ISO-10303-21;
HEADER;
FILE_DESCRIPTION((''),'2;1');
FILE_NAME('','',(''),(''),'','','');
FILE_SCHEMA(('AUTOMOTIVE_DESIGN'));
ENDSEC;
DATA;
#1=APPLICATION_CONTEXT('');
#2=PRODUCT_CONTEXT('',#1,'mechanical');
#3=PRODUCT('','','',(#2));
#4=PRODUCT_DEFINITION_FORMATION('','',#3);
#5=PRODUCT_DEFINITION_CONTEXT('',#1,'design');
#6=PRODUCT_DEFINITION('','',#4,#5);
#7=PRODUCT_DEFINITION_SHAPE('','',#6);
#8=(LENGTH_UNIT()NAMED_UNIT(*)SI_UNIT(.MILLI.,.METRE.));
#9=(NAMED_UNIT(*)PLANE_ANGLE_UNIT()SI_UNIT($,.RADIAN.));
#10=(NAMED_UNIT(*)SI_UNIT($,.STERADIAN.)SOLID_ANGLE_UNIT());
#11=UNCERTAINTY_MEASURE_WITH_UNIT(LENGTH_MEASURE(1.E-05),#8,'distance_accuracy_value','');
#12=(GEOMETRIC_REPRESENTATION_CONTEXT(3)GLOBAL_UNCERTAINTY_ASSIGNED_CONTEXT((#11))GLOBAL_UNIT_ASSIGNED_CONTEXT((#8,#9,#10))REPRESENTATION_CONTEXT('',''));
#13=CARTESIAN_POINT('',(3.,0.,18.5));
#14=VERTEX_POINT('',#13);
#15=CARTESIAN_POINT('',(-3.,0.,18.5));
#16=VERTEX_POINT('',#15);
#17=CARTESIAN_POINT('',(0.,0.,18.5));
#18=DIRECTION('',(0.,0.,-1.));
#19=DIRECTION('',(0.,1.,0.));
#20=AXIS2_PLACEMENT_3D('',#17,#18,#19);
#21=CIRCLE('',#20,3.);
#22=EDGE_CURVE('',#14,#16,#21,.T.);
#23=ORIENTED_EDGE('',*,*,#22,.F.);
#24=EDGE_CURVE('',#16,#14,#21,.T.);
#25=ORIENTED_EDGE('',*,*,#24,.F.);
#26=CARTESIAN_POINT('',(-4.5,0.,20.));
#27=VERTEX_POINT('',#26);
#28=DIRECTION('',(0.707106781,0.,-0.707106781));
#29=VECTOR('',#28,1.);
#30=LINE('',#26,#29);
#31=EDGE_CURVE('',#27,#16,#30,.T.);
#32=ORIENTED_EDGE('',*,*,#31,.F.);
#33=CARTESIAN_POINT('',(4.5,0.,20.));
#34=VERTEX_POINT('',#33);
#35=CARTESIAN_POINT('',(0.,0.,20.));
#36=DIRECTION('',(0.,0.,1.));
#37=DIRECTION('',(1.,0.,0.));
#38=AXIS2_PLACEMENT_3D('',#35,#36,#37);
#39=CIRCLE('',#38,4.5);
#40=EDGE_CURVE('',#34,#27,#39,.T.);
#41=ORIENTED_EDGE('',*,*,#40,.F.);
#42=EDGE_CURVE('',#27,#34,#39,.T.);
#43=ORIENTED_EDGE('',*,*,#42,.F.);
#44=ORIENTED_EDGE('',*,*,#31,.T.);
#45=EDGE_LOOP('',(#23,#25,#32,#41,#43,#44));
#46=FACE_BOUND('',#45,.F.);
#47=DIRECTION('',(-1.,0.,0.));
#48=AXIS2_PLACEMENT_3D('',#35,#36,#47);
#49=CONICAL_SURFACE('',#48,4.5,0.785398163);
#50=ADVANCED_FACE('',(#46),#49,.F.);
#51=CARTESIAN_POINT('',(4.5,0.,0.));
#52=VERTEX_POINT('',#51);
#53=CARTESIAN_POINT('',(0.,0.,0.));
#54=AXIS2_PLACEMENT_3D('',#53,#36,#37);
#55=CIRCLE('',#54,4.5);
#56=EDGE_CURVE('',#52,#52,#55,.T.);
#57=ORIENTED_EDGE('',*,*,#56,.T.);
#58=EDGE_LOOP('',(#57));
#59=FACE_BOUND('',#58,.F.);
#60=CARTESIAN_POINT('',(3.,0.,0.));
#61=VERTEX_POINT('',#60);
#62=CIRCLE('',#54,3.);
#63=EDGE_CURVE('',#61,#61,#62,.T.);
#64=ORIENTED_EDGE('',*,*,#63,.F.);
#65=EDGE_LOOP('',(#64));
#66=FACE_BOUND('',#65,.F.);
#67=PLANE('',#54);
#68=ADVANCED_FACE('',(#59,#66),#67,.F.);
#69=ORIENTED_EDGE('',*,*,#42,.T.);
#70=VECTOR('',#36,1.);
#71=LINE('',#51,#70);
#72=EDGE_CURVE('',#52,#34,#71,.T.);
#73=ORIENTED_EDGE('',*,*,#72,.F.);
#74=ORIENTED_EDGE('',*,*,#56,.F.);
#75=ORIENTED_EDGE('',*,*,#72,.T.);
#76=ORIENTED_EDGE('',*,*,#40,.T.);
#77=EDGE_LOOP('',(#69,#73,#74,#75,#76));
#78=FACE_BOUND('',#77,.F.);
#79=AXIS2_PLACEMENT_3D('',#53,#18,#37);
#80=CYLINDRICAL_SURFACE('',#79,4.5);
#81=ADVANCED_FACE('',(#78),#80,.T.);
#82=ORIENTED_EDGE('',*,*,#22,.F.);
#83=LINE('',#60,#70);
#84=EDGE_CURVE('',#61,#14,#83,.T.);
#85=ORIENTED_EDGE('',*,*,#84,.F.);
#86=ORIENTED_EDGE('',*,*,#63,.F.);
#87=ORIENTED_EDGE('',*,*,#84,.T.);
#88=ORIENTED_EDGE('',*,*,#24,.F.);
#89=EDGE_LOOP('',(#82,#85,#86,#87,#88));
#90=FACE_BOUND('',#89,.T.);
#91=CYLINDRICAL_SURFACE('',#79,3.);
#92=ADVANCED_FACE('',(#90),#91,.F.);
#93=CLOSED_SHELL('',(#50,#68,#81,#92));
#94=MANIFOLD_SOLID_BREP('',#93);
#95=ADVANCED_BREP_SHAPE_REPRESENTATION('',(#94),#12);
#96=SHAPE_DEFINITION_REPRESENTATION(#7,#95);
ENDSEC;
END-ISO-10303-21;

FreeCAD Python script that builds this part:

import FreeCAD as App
import Part
import Sketcher
Q = App.Units.Quantity

doc = App.newDocument("Part")
body = doc.addObject("PartDesign::Body", "Body")

# Sketch on XY plane
sketch1 = body.newObject("Sketcher::SketchObject", "Sketch")
sketch1.AttachmentSupport = (doc.getObject("XY_Plane"), [""])
sketch1.MapMode = "FlatFace"
sketch1.addGeometry(Part.Circle(App.Vector(0, 0, 0), App.Vector(0, 0, 1), 4.5), False)
sketch1.addGeometry(Part.Circle(App.Vector(0, 0, 0), App.Vector(0, 0, 1), 3), False)
sketch1.addConstraint(Sketcher.Constraint("Coincident", 0, 3, -1, 1))
sketch1.addConstraint(Sketcher.Constraint("Coincident", 1, 3, -1, 1))
sketch1.addConstraint(Sketcher.Constraint("Diameter", 0, Q("9 mm")))
sketch1.addConstraint(Sketcher.Constraint("Diameter", 1, Q("6 mm")))
pad1 = body.newObject("PartDesign::Pad", "Pad")
pad1.Profile = sketch1
pad1.Length = 20

# Sketch on XY plane
sketch2 = body.newObject("Sketcher::SketchObject", "Sketch001")
sketch2.AttachmentSupport = (doc.getObject("XY_Plane"), [""])
sketch2.MapMode = "FlatFace"
sketch2.AttachmentOffset = App.Placement(App.Vector(0, 0, 20), App.Rotation())
sketch2.addGeometry(Part.Circle(App.Vector(0, 0, 0), App.Vector(0, 0, 1), 3), False)
sketch2.addConstraint(Sketcher.Constraint("Coincident", 0, 3, -1, 1))
sketch2.addConstraint(Sketcher.Constraint("Diameter", 0, Q("6 mm")))
doc.recompute()
hole = body.newObject("PartDesign::Hole", "Hole")
hole.Profile = sketch2
hole.ThreadType = "None"
hole.Diameter = 6
hole.DepthType = "ThroughAll"
hole.HoleCutType = "Countersink"
hole.HoleCutDiameter = 9
hole.HoleCutCountersinkAngle = 90

doc.recompute()
